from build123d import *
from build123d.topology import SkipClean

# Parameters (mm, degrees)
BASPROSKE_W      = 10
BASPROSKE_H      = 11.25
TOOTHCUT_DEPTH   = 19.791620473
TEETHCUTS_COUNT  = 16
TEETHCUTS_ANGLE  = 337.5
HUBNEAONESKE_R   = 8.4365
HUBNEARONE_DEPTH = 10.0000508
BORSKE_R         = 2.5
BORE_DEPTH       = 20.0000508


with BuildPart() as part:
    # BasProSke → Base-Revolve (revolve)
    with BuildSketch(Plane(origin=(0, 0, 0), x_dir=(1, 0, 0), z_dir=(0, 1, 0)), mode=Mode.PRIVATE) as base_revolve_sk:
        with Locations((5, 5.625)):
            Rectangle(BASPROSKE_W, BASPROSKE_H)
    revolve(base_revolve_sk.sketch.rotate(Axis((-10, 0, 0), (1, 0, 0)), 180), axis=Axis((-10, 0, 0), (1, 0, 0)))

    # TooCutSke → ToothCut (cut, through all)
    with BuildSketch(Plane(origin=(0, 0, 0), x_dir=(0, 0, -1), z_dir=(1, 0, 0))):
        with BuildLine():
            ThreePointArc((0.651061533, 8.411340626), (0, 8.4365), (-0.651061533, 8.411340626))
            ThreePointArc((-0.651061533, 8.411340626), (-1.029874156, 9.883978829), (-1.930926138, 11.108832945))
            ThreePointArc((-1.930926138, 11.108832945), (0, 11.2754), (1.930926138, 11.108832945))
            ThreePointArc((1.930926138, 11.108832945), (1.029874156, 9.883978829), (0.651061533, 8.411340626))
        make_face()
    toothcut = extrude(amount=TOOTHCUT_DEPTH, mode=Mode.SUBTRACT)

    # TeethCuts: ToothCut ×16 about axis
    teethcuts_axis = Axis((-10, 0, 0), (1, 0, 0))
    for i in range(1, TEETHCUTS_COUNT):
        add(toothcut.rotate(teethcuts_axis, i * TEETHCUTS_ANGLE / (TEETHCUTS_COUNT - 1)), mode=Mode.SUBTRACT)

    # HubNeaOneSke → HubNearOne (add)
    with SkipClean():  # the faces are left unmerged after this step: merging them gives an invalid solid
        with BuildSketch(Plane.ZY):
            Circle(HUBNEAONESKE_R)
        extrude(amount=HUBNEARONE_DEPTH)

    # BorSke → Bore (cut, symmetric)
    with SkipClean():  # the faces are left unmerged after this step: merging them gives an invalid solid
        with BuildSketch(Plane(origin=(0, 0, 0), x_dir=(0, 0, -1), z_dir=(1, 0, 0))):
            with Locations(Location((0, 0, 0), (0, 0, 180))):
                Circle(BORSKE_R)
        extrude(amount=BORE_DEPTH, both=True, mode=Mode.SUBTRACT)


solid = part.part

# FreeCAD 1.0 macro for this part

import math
import FreeCAD as App
import Part
import Sketcher
from FreeCAD import Vector


def add_polygon(sketch, points):
    """Adds a closed chain of lines whose ends are joined by coincident constraints."""
    first, n = sketch.GeometryCount, len(points)
    for a, b in zip(points, points[1:] + points[:1]):
        sketch.addGeometry(Part.LineSegment(App.Vector(*a, 0), App.Vector(*b, 0)), False)
    for i in range(n):
        sketch.addConstraint(Sketcher.Constraint("Coincident", first + i, 2, first + (i + 1) % n, 1))

doc = App.newDocument("Part")
params = doc.addObject("Spreadsheet::Sheet", "Params")
for row, (alias, value) in enumerate([
    ("sketch1_width", "10 mm"),
    ("sketch1_height", "11.25 mm"),
    ("revolution_angle", "360 deg"),
    ("sketch2_radius", "4 mm"),
    ("pad1_length", "10.000051 mm"),
    ("sketch4_diameter", "5 mm"),
    ("pocket2_length", "40.000102 mm"),
], start=1):
    params.set(f"A{row}", alias)
    params.set(f"B{row}", "=" + value)
    params.setAlias(f"B{row}", alias)

body = doc.addObject("PartDesign::Body", "Body")

# Sketch on XZ plane
sketch1 = body.newObject("Sketcher::SketchObject", "Sketch")
sketch1.AttachmentSupport = (doc.getObject("XZ_Plane"), [""])
sketch1.MapMode = "FlatFace"
add_polygon(sketch1, [(0, -11), (0, 0), (10, 0), (10, -11)])  # lines 0-3
sketch1.addConstraint(Sketcher.Constraint("Vertical", 0))
sketch1.addConstraint(Sketcher.Constraint("Horizontal", 1))
sketch1.addConstraint(Sketcher.Constraint("Vertical", 2))
sketch1.addConstraint(Sketcher.Constraint("Horizontal", 3))
sketch1.addConstraint(Sketcher.Constraint("Coincident", 0, 2, -1, 1))
sketch1.addConstraint(Sketcher.Constraint("DistanceX", 1, 1, 1, 2, 10.0))
sketch1.addConstraint(Sketcher.Constraint("DistanceY", 0, 1, 0, 2, 11.25))
sketch1.setExpression("Constraints[9]", "Params.sketch1_width")
sketch1.setExpression("Constraints[10]", "Params.sketch1_height")
revolution = body.newObject("PartDesign::Revolution", "Revolution")
revolution.Profile = sketch1
revolution.ReferenceAxis = (sketch1, ["H_Axis"])
revolution.setExpression("Angle", "Params.revolution_angle")

# Sketch on YZ plane
sketch2 = body.newObject("Sketcher::SketchObject", "Sketch001")
sketch2.AttachmentSupport = (doc.getObject("YZ_Plane"), [""])
sketch2.MapMode = "FlatFace"
sketch2.addGeometry(Part.ArcOfCircle(Part.Circle(Vector(0, 0, 0), Vector(0, 0, 1), 8.4), math.radians(-4.43), math.radians(4.43)), False)
sketch2.addGeometry(Part.ArcOfCircle(Part.Circle(Vector(8.2, -4.6, 0), Vector(0, 0, 1), 4), math.radians(43), math.radians(87)), False)
sketch2.addGeometry(Part.ArcOfCircle(Part.Circle(Vector(0, 0, 0), Vector(0, 0, 1), 11.3), math.radians(-9.86), math.radians(9.86)), False)
sketch2.addGeometry(Part.ArcOfCircle(Part.Circle(Vector(8.2, 4.6, 0), Vector(0, 0, 1), 4), math.radians(-87), math.radians(-43)), False)
sketch2.addConstraint(Sketcher.Constraint("Coincident", 0, 1, 1, 2))
sketch2.addConstraint(Sketcher.Constraint("Coincident", 1, 1, 2, 1))
sketch2.addConstraint(Sketcher.Constraint("Coincident", 2, 2, 3, 2))
sketch2.addConstraint(Sketcher.Constraint("Coincident", 3, 1, 0, 2))
sketch2.addConstraint(Sketcher.Constraint("Coincident", 0, 3, -1, 1))
sketch2.addConstraint(Sketcher.Constraint("Coincident", 2, 3, -1, 1))
sketch2.addConstraint(Sketcher.Constraint("Equal", 1, 3))
sketch2.addConstraint(Sketcher.Constraint("Symmetric", 1, 3, 3, 3, -1))
sketch2.addConstraint(Sketcher.Constraint("Radius", 1, 4.0))
sketch2.addConstraint(Sketcher.Constraint("Radius", 0, 8.4365))
sketch2.addConstraint(Sketcher.Constraint("Radius", 2, 11.2754))
sketch2.addConstraint(Sketcher.Constraint("DistanceX", -1, 1, 1, 3, 8.16933))
sketch2.addConstraint(Sketcher.Constraint("DistanceX", -1, 1, 0, 1, 8.411341))
sketch2.setExpression("Constraints[8]", "Params.sketch2_radius")
pocket1 = body.newObject("PartDesign::Pocket", "Pocket")
pocket1.Profile = sketch2
pocket1.Type = "ThroughAll"
pocket1.Reversed = True
doc.recompute()

polarpattern = body.newObject("PartDesign::PolarPattern", "PolarPattern")
polarpattern.Originals = [pocket1]
polarpattern.Axis = (doc.getObject("X_Axis"), [""])
polarpattern.Angle = 360
polarpattern.Occurrences = 16
body.Tip = polarpattern

# Sketch on YZ plane
sketch3 = body.newObject("Sketcher::SketchObject", "Sketch002")
sketch3.AttachmentSupport = (doc.getObject("YZ_Plane"), [""])
sketch3.MapMode = "FlatFace"
sketch3.addGeometry(Part.Circle(Vector(0, 0, 0), Vector(0, 0, 1), 8), False)
sketch3.addConstraint(Sketcher.Constraint("Coincident", 0, 3, -1, 1))
sketch3.addConstraint(Sketcher.Constraint("Diameter", 0, 16.873))
pad1 = body.newObject("PartDesign::Pad", "Pad")
pad1.Profile = sketch3
pad1.setExpression("Length", "Params.pad1_length")
pad1.Reversed = True

# Sketch on YZ plane
sketch4 = body.newObject("Sketcher::SketchObject", "Sketch003")
sketch4.AttachmentSupport = (doc.getObject("YZ_Plane"), [""])
sketch4.MapMode = "FlatFace"
sketch4.addGeometry(Part.Circle(Vector(0, 0, 0), Vector(0, 0, 1), 2.5), False)
sketch4.addConstraint(Sketcher.Constraint("Coincident", 0, 3, -1, 1))
sketch4.addConstraint(Sketcher.Constraint("Diameter", 0, 5.0))
sketch4.setExpression("Constraints[1]", "Params.sketch4_diameter")
pocket2 = body.newObject("PartDesign::Pocket", "Pocket001")
pocket2.Profile = sketch4
pocket2.setExpression("Length", "Params.pocket2_length")
pocket2.Midplane = True

doc.recompute()
